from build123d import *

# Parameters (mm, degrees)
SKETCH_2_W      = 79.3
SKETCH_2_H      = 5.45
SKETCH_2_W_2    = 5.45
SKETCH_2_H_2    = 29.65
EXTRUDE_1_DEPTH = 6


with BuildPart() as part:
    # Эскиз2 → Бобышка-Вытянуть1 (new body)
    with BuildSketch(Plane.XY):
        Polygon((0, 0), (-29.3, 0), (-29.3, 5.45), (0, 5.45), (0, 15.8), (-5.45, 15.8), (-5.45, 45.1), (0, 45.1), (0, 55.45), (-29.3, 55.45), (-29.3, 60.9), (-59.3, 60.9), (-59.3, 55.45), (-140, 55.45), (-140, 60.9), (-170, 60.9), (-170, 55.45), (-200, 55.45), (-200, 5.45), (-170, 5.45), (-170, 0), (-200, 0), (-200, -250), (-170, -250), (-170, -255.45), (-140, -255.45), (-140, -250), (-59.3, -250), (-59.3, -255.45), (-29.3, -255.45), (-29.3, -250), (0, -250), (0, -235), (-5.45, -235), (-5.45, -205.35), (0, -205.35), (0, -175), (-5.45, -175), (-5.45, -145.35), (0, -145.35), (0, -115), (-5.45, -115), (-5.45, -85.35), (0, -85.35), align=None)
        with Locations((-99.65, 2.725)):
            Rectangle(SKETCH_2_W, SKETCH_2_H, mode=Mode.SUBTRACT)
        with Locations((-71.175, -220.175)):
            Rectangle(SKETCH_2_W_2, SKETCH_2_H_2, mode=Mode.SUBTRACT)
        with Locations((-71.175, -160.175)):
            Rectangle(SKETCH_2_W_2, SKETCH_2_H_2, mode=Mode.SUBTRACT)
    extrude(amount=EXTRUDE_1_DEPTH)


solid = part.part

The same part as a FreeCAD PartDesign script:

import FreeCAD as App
import Part
import Sketcher

V = App.Vector

doc = App.newDocument("Part")
body = doc.addObject("PartDesign::Body", "Body")

# Sketch on XY plane
sketch1 = doc.addObject("Sketcher::SketchObject", "Sketch")
body.addObject(sketch1)
sketch1.AttachmentSupport = (doc.XY_Plane, [""])
sketch1.MapMode = "FlatFace"
sketch1.addGeometry(Part.LineSegment(V(0, 0, 0), V(-29, 0, 0)), False)
sketch1.addGeometry(Part.LineSegment(V(-29, 0, 0), V(-29, 5, 0)), False)
sketch1.addGeometry(Part.LineSegment(V(-29, 5, 0), V(0, 5, 0)), False)
sketch1.addGeometry(Part.LineSegment(V(0, 5, 0), V(0, 16, 0)), False)
sketch1.addGeometry(Part.LineSegment(V(0, 16, 0), V(-5, 16, 0)), False)
sketch1.addGeometry(Part.LineSegment(V(-5, 16, 0), V(-5, 45, 0)), False)
sketch1.addGeometry(Part.LineSegment(V(-5, 45, 0), V(0, 45, 0)), False)
sketch1.addGeometry(Part.LineSegment(V(0, 45, 0), V(0, 55, 0)), False)
sketch1.addGeometry(Part.LineSegment(V(0, 55, 0), V(-29, 55, 0)), False)
sketch1.addGeometry(Part.LineSegment(V(-29, 55, 0), V(-29, 61, 0)), False)
sketch1.addGeometry(Part.LineSegment(V(-29, 61, 0), V(-59, 61, 0)), False)
sketch1.addGeometry(Part.LineSegment(V(-59, 61, 0), V(-59, 55, 0)), False)
sketch1.addGeometry(Part.LineSegment(V(-59, 55, 0), V(-140, 55, 0)), False)
sketch1.addGeometry(Part.LineSegment(V(-140, 55, 0), V(-140, 61, 0)), False)
sketch1.addGeometry(Part.LineSegment(V(-140, 61, 0), V(-170, 61, 0)), False)
sketch1.addGeometry(Part.LineSegment(V(-170, 61, 0), V(-170, 55, 0)), False)
sketch1.addGeometry(Part.LineSegment(V(-170, 55, 0), V(-200, 55, 0)), False)
sketch1.addGeometry(Part.LineSegment(V(-200, 55, 0), V(-200, 5, 0)), False)
sketch1.addGeometry(Part.LineSegment(V(-200, 5, 0), V(-170, 5, 0)), False)
sketch1.addGeometry(Part.LineSegment(V(-170, 5, 0), V(-170, 0, 0)), False)
sketch1.addGeometry(Part.LineSegment(V(-170, 0, 0), V(-200, 0, 0)), False)
sketch1.addGeometry(Part.LineSegment(V(-200, 0, 0), V(-200, -250, 0)), False)
sketch1.addGeometry(Part.LineSegment(V(-200, -250, 0), V(-170, -250, 0)), False)
sketch1.addGeometry(Part.LineSegment(V(-170, -250, 0), V(-170, -255, 0)), False)
sketch1.addGeometry(Part.LineSegment(V(-170, -255, 0), V(-140, -255, 0)), False)
sketch1.addGeometry(Part.LineSegment(V(-140, -255, 0), V(-140, -250, 0)), False)
sketch1.addGeometry(Part.LineSegment(V(-140, -250, 0), V(-59, -250, 0)), False)
sketch1.addGeometry(Part.LineSegment(V(-59, -250, 0), V(-59, -255, 0)), False)
sketch1.addGeometry(Part.LineSegment(V(-59, -255, 0), V(-29, -255, 0)), False)
sketch1.addGeometry(Part.LineSegment(V(-29, -255, 0), V(-29, -250, 0)), False)
sketch1.addGeometry(Part.LineSegment(V(-29, -250, 0), V(0, -250, 0)), False)
sketch1.addGeometry(Part.LineSegment(V(0, -250, 0), V(0, -235, 0)), False)
sketch1.addGeometry(Part.LineSegment(V(0, -235, 0), V(-5, -235, 0)), False)
sketch1.addGeometry(Part.LineSegment(V(-5, -235, 0), V(-5, -205, 0)), False)
sketch1.addGeometry(Part.LineSegment(V(-5, -205, 0), V(0, -205, 0)), False)
sketch1.addGeometry(Part.LineSegment(V(0, -205, 0), V(0, -175, 0)), False)
sketch1.addGeometry(Part.LineSegment(V(0, -175, 0), V(-5, -175, 0)), False)
sketch1.addGeometry(Part.LineSegment(V(-5, -175, 0), V(-5, -145, 0)), False)
sketch1.addGeometry(Part.LineSegment(V(-5, -145, 0), V(0, -145, 0)), False)
sketch1.addGeometry(Part.LineSegment(V(0, -145, 0), V(0, -115, 0)), False)
sketch1.addGeometry(Part.LineSegment(V(0, -115, 0), V(-5, -115, 0)), False)
sketch1.addGeometry(Part.LineSegment(V(-5, -115, 0), V(-5, -85, 0)), False)
sketch1.addGeometry(Part.LineSegment(V(-5, -85, 0), V(0, -85, 0)), False)
sketch1.addGeometry(Part.LineSegment(V(0, -85, 0), V(0, 0, 0)), False)
sketch1.addGeometry(Part.LineSegment(V(-68, -235, 0), V(-74, -235, 0)), False)
sketch1.addGeometry(Part.LineSegment(V(-74, -235, 0), V(-74, -205, 0)), False)
sketch1.addGeometry(Part.LineSegment(V(-74, -205, 0), V(-68, -205, 0)), False)
sketch1.addGeometry(Part.LineSegment(V(-68, -205, 0), V(-68, -235, 0)), False)
sketch1.addGeometry(Part.LineSegment(V(-68, -175, 0), V(-74, -175, 0)), False)
sketch1.addGeometry(Part.LineSegment(V(-74, -175, 0), V(-74, -145, 0)), False)
sketch1.addGeometry(Part.LineSegment(V(-74, -145, 0), V(-68, -145, 0)), False)
sketch1.addGeometry(Part.LineSegment(V(-68, -145, 0), V(-68, -175, 0)), False)
sketch1.addGeometry(Part.LineSegment(V(-60, 0, 0), V(-139, 0, 0)), False)
sketch1.addGeometry(Part.LineSegment(V(-139, 0, 0), V(-139, 5, 0)), False)
sketch1.addGeometry(Part.LineSegment(V(-139, 5, 0), V(-60, 5, 0)), False)
sketch1.addGeometry(Part.LineSegment(V(-60, 5, 0), V(-60, 0, 0)), False)
sketch1.addConstraint(Sketcher.Constraint("Coincident", 0, 2, 1, 1))
sketch1.addConstraint(Sketcher.Constraint("Coincident", 1, 2, 2, 1))
sketch1.addConstraint(Sketcher.Constraint("Coincident", 2, 2, 3, 1))
sketch1.addConstraint(Sketcher.Constraint("Coincident", 3, 2, 4, 1))
sketch1.addConstraint(Sketcher.Constraint("Coincident", 4, 2, 5, 1))
sketch1.addConstraint(Sketcher.Constraint("Coincident", 5, 2, 6, 1))
sketch1.addConstraint(Sketcher.Constraint("Coincident", 6, 2, 7, 1))
sketch1.addConstraint(Sketcher.Constraint("Coincident", 7, 2, 8, 1))
sketch1.addConstraint(Sketcher.Constraint("Coincident", 8, 2, 9, 1))
sketch1.addConstraint(Sketcher.Constraint("Coincident", 9, 2, 10, 1))
sketch1.addConstraint(Sketcher.Constraint("Coincident", 10, 2, 11, 1))
sketch1.addConstraint(Sketcher.Constraint("Coincident", 11, 2, 12, 1))
sketch1.addConstraint(Sketcher.Constraint("Coincident", 12, 2, 13, 1))
sketch1.addConstraint(Sketcher.Constraint("Coincident", 13, 2, 14, 1))
sketch1.addConstraint(Sketcher.Constraint("Coincident", 14, 2, 15, 1))
sketch1.addConstraint(Sketcher.Constraint("Coincident", 15, 2, 16, 1))
sketch1.addConstraint(Sketcher.Constraint("Coincident", 16, 2, 17, 1))
sketch1.addConstraint(Sketcher.Constraint("Coincident", 17, 2, 18, 1))
sketch1.addConstraint(Sketcher.Constraint("Coincident", 18, 2, 19, 1))
sketch1.addConstraint(Sketcher.Constraint("Coincident", 19, 2, 20, 1))
sketch1.addConstraint(Sketcher.Constraint("Coincident", 20, 2, 21, 1))
sketch1.addConstraint(Sketcher.Constraint("Coincident", 21, 2, 22, 1))
sketch1.addConstraint(Sketcher.Constraint("Coincident", 22, 2, 23, 1))
sketch1.addConstraint(Sketcher.Constraint("Coincident", 23, 2, 24, 1))
sketch1.addConstraint(Sketcher.Constraint("Coincident", 24, 2, 25, 1))
sketch1.addConstraint(Sketcher.Constraint("Coincident", 25, 2, 26, 1))
sketch1.addConstraint(Sketcher.Constraint("Coincident", 26, 2, 27, 1))
sketch1.addConstraint(Sketcher.Constraint("Coincident", 27, 2, 28, 1))
sketch1.addConstraint(Sketcher.Constraint("Coincident", 28, 2, 29, 1))
sketch1.addConstraint(Sketcher.Constraint("Coincident", 29, 2, 30, 1))
sketch1.addConstraint(Sketcher.Constraint("Coincident", 30, 2, 31, 1))
sketch1.addConstraint(Sketcher.Constraint("Coincident", 31, 2, 32, 1))
sketch1.addConstraint(Sketcher.Constraint("Coincident", 32, 2, 33, 1))
sketch1.addConstraint(Sketcher.Constraint("Coincident", 33, 2, 34, 1))
sketch1.addConstraint(Sketcher.Constraint("Coincident", 34, 2, 35, 1))
sketch1.addConstraint(Sketcher.Constraint("Coincident", 35, 2, 36, 1))
sketch1.addConstraint(Sketcher.Constraint("Coincident", 36, 2, 37, 1))
sketch1.addConstraint(Sketcher.Constraint("Coincident", 37, 2, 38, 1))
sketch1.addConstraint(Sketcher.Constraint("Coincident", 38, 2, 39, 1))
sketch1.addConstraint(Sketcher.Constraint("Coincident", 39, 2, 40, 1))
sketch1.addConstraint(Sketcher.Constraint("Coincident", 40, 2, 41, 1))
sketch1.addConstraint(Sketcher.Constraint("Coincident", 41, 2, 42, 1))
sketch1.addConstraint(Sketcher.Constraint("Coincident", 42, 2, 43, 1))
sketch1.addConstraint(Sketcher.Constraint("Coincident", 43, 2, 0, 1))
sketch1.addConstraint(Sketcher.Constraint("Coincident", 44, 2, 45, 1))
sketch1.addConstraint(Sketcher.Constraint("Coincident", 45, 2, 46, 1))
sketch1.addConstraint(Sketcher.Constraint("Coincident", 46, 2, 47, 1))
sketch1.addConstraint(Sketcher.Constraint("Coincident", 47, 2, 44, 1))
sketch1.addConstraint(Sketcher.Constraint("Coincident", 48, 2, 49, 1))
sketch1.addConstraint(Sketcher.Constraint("Coincident", 49, 2, 50, 1))
sketch1.addConstraint(Sketcher.Constraint("Coincident", 50, 2, 51, 1))
sketch1.addConstraint(Sketcher.Constraint("Coincident", 51, 2, 48, 1))
sketch1.addConstraint(Sketcher.Constraint("Coincident", 52, 2, 53, 1))
sketch1.addConstraint(Sketcher.Constraint("Coincident", 53, 2, 54, 1))
sketch1.addConstraint(Sketcher.Constraint("Coincident", 54, 2, 55, 1))
sketch1.addConstraint(Sketcher.Constraint("Coincident", 55, 2, 52, 1))
sketch1.addConstraint(Sketcher.Constraint("Horizontal", 0))
sketch1.addConstraint(Sketcher.Constraint("Vertical", 1))
sketch1.addConstraint(Sketcher.Constraint("Horizontal", 2))
sketch1.addConstraint(Sketcher.Constraint("Vertical", 3))
sketch1.addConstraint(Sketcher.Constraint("Horizontal", 4))
sketch1.addConstraint(Sketcher.Constraint("Vertical", 5))
sketch1.addConstraint(Sketcher.Constraint("Horizontal", 6))
sketch1.addConstraint(Sketcher.Constraint("Vertical", 7))
sketch1.addConstraint(Sketcher.Constraint("Horizontal", 8))
sketch1.addConstraint(Sketcher.Constraint("Vertical", 9))
sketch1.addConstraint(Sketcher.Constraint("Horizontal", 10))
sketch1.addConstraint(Sketcher.Constraint("Vertical", 11))
sketch1.addConstraint(Sketcher.Constraint("Horizontal", 12))
sketch1.addConstraint(Sketcher.Constraint("Vertical", 13))
sketch1.addConstraint(Sketcher.Constraint("Horizontal", 14))
sketch1.addConstraint(Sketcher.Constraint("Vertical", 15))
sketch1.addConstraint(Sketcher.Constraint("Horizontal", 16))
sketch1.addConstraint(Sketcher.Constraint("Vertical", 17))
sketch1.addConstraint(Sketcher.Constraint("Horizontal", 18))
sketch1.addConstraint(Sketcher.Constraint("Vertical", 19))
sketch1.addConstraint(Sketcher.Constraint("Horizontal", 20))
sketch1.addConstraint(Sketcher.Constraint("Vertical", 21))
sketch1.addConstraint(Sketcher.Constraint("Horizontal", 22))
sketch1.addConstraint(Sketcher.Constraint("Vertical", 23))
sketch1.addConstraint(Sketcher.Constraint("Horizontal", 24))
sketch1.addConstraint(Sketcher.Constraint("Vertical", 25))
sketch1.addConstraint(Sketcher.Constraint("Horizontal", 26))
sketch1.addConstraint(Sketcher.Constraint("Vertical", 27))
sketch1.addConstraint(Sketcher.Constraint("Horizontal", 28))
sketch1.addConstraint(Sketcher.Constraint("Vertical", 29))
sketch1.addConstraint(Sketcher.Constraint("Horizontal", 30))
sketch1.addConstraint(Sketcher.Constraint("Vertical", 31))
sketch1.addConstraint(Sketcher.Constraint("Horizontal", 32))
sketch1.addConstraint(Sketcher.Constraint("Vertical", 33))
sketch1.addConstraint(Sketcher.Constraint("Horizontal", 34))
sketch1.addConstraint(Sketcher.Constraint("Vertical", 35))
sketch1.addConstraint(Sketcher.Constraint("Horizontal", 36))
sketch1.addConstraint(Sketcher.Constraint("Vertical", 37))
sketch1.addConstraint(Sketcher.Constraint("Horizontal", 38))
sketch1.addConstraint(Sketcher.Constraint("Vertical", 39))
sketch1.addConstraint(Sketcher.Constraint("Horizontal", 40))
sketch1.addConstraint(Sketcher.Constraint("Vertical", 41))
sketch1.addConstraint(Sketcher.Constraint("Horizontal", 42))
sketch1.addConstraint(Sketcher.Constraint("Vertical", 43))
sketch1.addConstraint(Sketcher.Constraint("Horizontal", 44))
sketch1.addConstraint(Sketcher.Constraint("Vertical", 45))
sketch1.addConstraint(Sketcher.Constraint("Horizontal", 46))
sketch1.addConstraint(Sketcher.Constraint("Vertical", 47))
sketch1.addConstraint(Sketcher.Constraint("Horizontal", 48))
sketch1.addConstraint(Sketcher.Constraint("Vertical", 49))
sketch1.addConstraint(Sketcher.Constraint("Horizontal", 50))
sketch1.addConstraint(Sketcher.Constraint("Vertical", 51))
sketch1.addConstraint(Sketcher.Constraint("Horizontal", 52))
sketch1.addConstraint(Sketcher.Constraint("Vertical", 53))
sketch1.addConstraint(Sketcher.Constraint("Horizontal", 54))
sketch1.addConstraint(Sketcher.Constraint("Vertical", 55))
sketch1.addConstraint(Sketcher.Constraint("Coincident", 43, 2, -1, 1))
sketch1.addConstraint(Sketcher.Constraint("PointOnObject", 2, 2, -2))
sketch1.addConstraint(Sketcher.Constraint("PointOnObject", 6, 2, -2))
sketch1.addConstraint(Sketcher.Constraint("PointOnObject", 19, 2, -1))
sketch1.addConstraint(Sketcher.Constraint("PointOnObject", 30, 2, -2))
sketch1.addConstraint(Sketcher.Constraint("PointOnObject", 34, 2, -2))
sketch1.addConstraint(Sketcher.Constraint("PointOnObject", 38, 2, -2))
sketch1.addConstraint(Sketcher.Constraint("PointOnObject", 52, 2, -1))
sketch1.addConstraint(Sketcher.Constraint("Horizontal", 8, 2, 11, 2))
sketch1.addConstraint(Sketcher.Constraint("Horizontal", 10, 2, 13, 2))
sketch1.addConstraint(Sketcher.Constraint("Horizontal", 12, 2, 15, 2))
sketch1.addConstraint(Sketcher.Constraint("Horizontal", 2, 2, 17, 2))
sketch1.addConstraint(Sketcher.Constraint("Horizontal", 22, 2, 25, 2))
sketch1.addConstraint(Sketcher.Constraint("Horizontal", 24, 2, 27, 2))
sketch1.addConstraint(Sketcher.Constraint("Horizontal", 26, 2, 29, 2))
sketch1.addConstraint(Sketcher.Constraint("Horizontal", 32, 2, 44, 2))
sketch1.addConstraint(Sketcher.Constraint("Horizontal", 34, 2, 45, 2))
sketch1.addConstraint(Sketcher.Constraint("Horizontal", 36, 2, 48, 2))
sketch1.addConstraint(Sketcher.Constraint("Horizontal", 38, 2, 49, 2))
sketch1.addConstraint(Sketcher.Constraint("Horizontal", 18, 2, 53, 2))
sketch1.addConstraint(Sketcher.Constraint("Vertical", 1, 2, 8, 2))
sketch1.addConstraint(Sketcher.Constraint("Vertical", 15, 2, 18, 2))
sketch1.addConstraint(Sketcher.Constraint("Vertical", 17, 2, 20, 2))
sketch1.addConstraint(Sketcher.Constraint("Vertical", 19, 2, 22, 2))
sketch1.addConstraint(Sketcher.Constraint("Vertical", 13, 2, 24, 2))
sketch1.addConstraint(Sketcher.Constraint("Vertical", 11, 2, 26, 2))
sketch1.addConstraint(Sketcher.Constraint("Vertical", 9, 2, 28, 2))
sketch1.addConstraint(Sketcher.Constraint("Vertical", 5, 2, 32, 2))
sketch1.addConstraint(Sketcher.Constraint("Vertical", 33, 2, 36, 2))
sketch1.addConstraint(Sketcher.Constraint("Vertical", 37, 2, 40, 2))
sketch1.addConstraint(Sketcher.Constraint("Vertical", 45, 2, 48, 2))
sketch1.addConstraint(Sketcher.Constraint("Vertical", 47, 2, 50, 2))
sketch1.addConstraint(Sketcher.Constraint("Equal", 10, 14))
sketch1.addConstraint(Sketcher.Constraint("Equal", 14, 16))
sketch1.addConstraint(Sketcher.Constraint("Equal", 42, 44))
sketch1.addConstraint(Sketcher.Constraint("Equal", 50, 1))
sketch1.addConstraint(Sketcher.Constraint("Equal", 30, 5))
sketch1.addConstraint(Sketcher.Constraint("Equal", 3, 7))
sketch1.addConstraint(Sketcher.Constraint("Equal", 1, 9))
sketch1.addConstraint(Sketcher.Constraint("Equal", 19, 23))
sketch1.addConstraint(Sketcher.Constraint("Equal", 33, 37))
sketch1.addConstraint(Sketcher.Constraint("Equal", 35, 39))
sketch1.addConstraint(Sketcher.Constraint("Equal", 37, 41))
sketch1.addConstraint(Sketcher.Constraint("DistanceX", 10, 2, 10, 1, 30.0))
sketch1.addConstraint(Sketcher.Constraint("DistanceY", 17, 2, 17, 1, 50.0))
sketch1.addConstraint(Sketcher.Constraint("DistanceY", 21, 2, 21, 1, 250.0))
sketch1.addConstraint(Sketcher.Constraint("DistanceY", 31, 1, 31, 2, 15.0))
sketch1.addConstraint(Sketcher.Constraint("DistanceX", 0, 2, 0, 1, 29.3))
sketch1.addConstraint(Sketcher.Constraint("DistanceX", 12, 2, 12, 1, 80.7))
sketch1.addConstraint(Sketcher.Constraint("DistanceX", 52, 2, 52, 1, 79.3))
sketch1.addConstraint(Sketcher.Constraint("DistanceY", 35, 2, -1, 1, 175.0))
sketch1.addConstraint(Sketcher.Constraint("DistanceX", 54, 2, -1, 1, 60.0))
sketch1.addConstraint(Sketcher.Constraint("DistanceX", 50, 2, 37, 2, 63.0))
sketch1.addConstraint(Sketcher.Constraint("DistanceX", 4, 2, 4, 1, 5.45))
sketch1.addConstraint(Sketcher.Constraint("DistanceY", 33, 1, 33, 2, 29.65))
pad1 = doc.addObject("PartDesign::Pad", "Pad")
body.addObject(pad1)
pad1.Profile = sketch1
pad1.Length = 6

doc.recompute()
